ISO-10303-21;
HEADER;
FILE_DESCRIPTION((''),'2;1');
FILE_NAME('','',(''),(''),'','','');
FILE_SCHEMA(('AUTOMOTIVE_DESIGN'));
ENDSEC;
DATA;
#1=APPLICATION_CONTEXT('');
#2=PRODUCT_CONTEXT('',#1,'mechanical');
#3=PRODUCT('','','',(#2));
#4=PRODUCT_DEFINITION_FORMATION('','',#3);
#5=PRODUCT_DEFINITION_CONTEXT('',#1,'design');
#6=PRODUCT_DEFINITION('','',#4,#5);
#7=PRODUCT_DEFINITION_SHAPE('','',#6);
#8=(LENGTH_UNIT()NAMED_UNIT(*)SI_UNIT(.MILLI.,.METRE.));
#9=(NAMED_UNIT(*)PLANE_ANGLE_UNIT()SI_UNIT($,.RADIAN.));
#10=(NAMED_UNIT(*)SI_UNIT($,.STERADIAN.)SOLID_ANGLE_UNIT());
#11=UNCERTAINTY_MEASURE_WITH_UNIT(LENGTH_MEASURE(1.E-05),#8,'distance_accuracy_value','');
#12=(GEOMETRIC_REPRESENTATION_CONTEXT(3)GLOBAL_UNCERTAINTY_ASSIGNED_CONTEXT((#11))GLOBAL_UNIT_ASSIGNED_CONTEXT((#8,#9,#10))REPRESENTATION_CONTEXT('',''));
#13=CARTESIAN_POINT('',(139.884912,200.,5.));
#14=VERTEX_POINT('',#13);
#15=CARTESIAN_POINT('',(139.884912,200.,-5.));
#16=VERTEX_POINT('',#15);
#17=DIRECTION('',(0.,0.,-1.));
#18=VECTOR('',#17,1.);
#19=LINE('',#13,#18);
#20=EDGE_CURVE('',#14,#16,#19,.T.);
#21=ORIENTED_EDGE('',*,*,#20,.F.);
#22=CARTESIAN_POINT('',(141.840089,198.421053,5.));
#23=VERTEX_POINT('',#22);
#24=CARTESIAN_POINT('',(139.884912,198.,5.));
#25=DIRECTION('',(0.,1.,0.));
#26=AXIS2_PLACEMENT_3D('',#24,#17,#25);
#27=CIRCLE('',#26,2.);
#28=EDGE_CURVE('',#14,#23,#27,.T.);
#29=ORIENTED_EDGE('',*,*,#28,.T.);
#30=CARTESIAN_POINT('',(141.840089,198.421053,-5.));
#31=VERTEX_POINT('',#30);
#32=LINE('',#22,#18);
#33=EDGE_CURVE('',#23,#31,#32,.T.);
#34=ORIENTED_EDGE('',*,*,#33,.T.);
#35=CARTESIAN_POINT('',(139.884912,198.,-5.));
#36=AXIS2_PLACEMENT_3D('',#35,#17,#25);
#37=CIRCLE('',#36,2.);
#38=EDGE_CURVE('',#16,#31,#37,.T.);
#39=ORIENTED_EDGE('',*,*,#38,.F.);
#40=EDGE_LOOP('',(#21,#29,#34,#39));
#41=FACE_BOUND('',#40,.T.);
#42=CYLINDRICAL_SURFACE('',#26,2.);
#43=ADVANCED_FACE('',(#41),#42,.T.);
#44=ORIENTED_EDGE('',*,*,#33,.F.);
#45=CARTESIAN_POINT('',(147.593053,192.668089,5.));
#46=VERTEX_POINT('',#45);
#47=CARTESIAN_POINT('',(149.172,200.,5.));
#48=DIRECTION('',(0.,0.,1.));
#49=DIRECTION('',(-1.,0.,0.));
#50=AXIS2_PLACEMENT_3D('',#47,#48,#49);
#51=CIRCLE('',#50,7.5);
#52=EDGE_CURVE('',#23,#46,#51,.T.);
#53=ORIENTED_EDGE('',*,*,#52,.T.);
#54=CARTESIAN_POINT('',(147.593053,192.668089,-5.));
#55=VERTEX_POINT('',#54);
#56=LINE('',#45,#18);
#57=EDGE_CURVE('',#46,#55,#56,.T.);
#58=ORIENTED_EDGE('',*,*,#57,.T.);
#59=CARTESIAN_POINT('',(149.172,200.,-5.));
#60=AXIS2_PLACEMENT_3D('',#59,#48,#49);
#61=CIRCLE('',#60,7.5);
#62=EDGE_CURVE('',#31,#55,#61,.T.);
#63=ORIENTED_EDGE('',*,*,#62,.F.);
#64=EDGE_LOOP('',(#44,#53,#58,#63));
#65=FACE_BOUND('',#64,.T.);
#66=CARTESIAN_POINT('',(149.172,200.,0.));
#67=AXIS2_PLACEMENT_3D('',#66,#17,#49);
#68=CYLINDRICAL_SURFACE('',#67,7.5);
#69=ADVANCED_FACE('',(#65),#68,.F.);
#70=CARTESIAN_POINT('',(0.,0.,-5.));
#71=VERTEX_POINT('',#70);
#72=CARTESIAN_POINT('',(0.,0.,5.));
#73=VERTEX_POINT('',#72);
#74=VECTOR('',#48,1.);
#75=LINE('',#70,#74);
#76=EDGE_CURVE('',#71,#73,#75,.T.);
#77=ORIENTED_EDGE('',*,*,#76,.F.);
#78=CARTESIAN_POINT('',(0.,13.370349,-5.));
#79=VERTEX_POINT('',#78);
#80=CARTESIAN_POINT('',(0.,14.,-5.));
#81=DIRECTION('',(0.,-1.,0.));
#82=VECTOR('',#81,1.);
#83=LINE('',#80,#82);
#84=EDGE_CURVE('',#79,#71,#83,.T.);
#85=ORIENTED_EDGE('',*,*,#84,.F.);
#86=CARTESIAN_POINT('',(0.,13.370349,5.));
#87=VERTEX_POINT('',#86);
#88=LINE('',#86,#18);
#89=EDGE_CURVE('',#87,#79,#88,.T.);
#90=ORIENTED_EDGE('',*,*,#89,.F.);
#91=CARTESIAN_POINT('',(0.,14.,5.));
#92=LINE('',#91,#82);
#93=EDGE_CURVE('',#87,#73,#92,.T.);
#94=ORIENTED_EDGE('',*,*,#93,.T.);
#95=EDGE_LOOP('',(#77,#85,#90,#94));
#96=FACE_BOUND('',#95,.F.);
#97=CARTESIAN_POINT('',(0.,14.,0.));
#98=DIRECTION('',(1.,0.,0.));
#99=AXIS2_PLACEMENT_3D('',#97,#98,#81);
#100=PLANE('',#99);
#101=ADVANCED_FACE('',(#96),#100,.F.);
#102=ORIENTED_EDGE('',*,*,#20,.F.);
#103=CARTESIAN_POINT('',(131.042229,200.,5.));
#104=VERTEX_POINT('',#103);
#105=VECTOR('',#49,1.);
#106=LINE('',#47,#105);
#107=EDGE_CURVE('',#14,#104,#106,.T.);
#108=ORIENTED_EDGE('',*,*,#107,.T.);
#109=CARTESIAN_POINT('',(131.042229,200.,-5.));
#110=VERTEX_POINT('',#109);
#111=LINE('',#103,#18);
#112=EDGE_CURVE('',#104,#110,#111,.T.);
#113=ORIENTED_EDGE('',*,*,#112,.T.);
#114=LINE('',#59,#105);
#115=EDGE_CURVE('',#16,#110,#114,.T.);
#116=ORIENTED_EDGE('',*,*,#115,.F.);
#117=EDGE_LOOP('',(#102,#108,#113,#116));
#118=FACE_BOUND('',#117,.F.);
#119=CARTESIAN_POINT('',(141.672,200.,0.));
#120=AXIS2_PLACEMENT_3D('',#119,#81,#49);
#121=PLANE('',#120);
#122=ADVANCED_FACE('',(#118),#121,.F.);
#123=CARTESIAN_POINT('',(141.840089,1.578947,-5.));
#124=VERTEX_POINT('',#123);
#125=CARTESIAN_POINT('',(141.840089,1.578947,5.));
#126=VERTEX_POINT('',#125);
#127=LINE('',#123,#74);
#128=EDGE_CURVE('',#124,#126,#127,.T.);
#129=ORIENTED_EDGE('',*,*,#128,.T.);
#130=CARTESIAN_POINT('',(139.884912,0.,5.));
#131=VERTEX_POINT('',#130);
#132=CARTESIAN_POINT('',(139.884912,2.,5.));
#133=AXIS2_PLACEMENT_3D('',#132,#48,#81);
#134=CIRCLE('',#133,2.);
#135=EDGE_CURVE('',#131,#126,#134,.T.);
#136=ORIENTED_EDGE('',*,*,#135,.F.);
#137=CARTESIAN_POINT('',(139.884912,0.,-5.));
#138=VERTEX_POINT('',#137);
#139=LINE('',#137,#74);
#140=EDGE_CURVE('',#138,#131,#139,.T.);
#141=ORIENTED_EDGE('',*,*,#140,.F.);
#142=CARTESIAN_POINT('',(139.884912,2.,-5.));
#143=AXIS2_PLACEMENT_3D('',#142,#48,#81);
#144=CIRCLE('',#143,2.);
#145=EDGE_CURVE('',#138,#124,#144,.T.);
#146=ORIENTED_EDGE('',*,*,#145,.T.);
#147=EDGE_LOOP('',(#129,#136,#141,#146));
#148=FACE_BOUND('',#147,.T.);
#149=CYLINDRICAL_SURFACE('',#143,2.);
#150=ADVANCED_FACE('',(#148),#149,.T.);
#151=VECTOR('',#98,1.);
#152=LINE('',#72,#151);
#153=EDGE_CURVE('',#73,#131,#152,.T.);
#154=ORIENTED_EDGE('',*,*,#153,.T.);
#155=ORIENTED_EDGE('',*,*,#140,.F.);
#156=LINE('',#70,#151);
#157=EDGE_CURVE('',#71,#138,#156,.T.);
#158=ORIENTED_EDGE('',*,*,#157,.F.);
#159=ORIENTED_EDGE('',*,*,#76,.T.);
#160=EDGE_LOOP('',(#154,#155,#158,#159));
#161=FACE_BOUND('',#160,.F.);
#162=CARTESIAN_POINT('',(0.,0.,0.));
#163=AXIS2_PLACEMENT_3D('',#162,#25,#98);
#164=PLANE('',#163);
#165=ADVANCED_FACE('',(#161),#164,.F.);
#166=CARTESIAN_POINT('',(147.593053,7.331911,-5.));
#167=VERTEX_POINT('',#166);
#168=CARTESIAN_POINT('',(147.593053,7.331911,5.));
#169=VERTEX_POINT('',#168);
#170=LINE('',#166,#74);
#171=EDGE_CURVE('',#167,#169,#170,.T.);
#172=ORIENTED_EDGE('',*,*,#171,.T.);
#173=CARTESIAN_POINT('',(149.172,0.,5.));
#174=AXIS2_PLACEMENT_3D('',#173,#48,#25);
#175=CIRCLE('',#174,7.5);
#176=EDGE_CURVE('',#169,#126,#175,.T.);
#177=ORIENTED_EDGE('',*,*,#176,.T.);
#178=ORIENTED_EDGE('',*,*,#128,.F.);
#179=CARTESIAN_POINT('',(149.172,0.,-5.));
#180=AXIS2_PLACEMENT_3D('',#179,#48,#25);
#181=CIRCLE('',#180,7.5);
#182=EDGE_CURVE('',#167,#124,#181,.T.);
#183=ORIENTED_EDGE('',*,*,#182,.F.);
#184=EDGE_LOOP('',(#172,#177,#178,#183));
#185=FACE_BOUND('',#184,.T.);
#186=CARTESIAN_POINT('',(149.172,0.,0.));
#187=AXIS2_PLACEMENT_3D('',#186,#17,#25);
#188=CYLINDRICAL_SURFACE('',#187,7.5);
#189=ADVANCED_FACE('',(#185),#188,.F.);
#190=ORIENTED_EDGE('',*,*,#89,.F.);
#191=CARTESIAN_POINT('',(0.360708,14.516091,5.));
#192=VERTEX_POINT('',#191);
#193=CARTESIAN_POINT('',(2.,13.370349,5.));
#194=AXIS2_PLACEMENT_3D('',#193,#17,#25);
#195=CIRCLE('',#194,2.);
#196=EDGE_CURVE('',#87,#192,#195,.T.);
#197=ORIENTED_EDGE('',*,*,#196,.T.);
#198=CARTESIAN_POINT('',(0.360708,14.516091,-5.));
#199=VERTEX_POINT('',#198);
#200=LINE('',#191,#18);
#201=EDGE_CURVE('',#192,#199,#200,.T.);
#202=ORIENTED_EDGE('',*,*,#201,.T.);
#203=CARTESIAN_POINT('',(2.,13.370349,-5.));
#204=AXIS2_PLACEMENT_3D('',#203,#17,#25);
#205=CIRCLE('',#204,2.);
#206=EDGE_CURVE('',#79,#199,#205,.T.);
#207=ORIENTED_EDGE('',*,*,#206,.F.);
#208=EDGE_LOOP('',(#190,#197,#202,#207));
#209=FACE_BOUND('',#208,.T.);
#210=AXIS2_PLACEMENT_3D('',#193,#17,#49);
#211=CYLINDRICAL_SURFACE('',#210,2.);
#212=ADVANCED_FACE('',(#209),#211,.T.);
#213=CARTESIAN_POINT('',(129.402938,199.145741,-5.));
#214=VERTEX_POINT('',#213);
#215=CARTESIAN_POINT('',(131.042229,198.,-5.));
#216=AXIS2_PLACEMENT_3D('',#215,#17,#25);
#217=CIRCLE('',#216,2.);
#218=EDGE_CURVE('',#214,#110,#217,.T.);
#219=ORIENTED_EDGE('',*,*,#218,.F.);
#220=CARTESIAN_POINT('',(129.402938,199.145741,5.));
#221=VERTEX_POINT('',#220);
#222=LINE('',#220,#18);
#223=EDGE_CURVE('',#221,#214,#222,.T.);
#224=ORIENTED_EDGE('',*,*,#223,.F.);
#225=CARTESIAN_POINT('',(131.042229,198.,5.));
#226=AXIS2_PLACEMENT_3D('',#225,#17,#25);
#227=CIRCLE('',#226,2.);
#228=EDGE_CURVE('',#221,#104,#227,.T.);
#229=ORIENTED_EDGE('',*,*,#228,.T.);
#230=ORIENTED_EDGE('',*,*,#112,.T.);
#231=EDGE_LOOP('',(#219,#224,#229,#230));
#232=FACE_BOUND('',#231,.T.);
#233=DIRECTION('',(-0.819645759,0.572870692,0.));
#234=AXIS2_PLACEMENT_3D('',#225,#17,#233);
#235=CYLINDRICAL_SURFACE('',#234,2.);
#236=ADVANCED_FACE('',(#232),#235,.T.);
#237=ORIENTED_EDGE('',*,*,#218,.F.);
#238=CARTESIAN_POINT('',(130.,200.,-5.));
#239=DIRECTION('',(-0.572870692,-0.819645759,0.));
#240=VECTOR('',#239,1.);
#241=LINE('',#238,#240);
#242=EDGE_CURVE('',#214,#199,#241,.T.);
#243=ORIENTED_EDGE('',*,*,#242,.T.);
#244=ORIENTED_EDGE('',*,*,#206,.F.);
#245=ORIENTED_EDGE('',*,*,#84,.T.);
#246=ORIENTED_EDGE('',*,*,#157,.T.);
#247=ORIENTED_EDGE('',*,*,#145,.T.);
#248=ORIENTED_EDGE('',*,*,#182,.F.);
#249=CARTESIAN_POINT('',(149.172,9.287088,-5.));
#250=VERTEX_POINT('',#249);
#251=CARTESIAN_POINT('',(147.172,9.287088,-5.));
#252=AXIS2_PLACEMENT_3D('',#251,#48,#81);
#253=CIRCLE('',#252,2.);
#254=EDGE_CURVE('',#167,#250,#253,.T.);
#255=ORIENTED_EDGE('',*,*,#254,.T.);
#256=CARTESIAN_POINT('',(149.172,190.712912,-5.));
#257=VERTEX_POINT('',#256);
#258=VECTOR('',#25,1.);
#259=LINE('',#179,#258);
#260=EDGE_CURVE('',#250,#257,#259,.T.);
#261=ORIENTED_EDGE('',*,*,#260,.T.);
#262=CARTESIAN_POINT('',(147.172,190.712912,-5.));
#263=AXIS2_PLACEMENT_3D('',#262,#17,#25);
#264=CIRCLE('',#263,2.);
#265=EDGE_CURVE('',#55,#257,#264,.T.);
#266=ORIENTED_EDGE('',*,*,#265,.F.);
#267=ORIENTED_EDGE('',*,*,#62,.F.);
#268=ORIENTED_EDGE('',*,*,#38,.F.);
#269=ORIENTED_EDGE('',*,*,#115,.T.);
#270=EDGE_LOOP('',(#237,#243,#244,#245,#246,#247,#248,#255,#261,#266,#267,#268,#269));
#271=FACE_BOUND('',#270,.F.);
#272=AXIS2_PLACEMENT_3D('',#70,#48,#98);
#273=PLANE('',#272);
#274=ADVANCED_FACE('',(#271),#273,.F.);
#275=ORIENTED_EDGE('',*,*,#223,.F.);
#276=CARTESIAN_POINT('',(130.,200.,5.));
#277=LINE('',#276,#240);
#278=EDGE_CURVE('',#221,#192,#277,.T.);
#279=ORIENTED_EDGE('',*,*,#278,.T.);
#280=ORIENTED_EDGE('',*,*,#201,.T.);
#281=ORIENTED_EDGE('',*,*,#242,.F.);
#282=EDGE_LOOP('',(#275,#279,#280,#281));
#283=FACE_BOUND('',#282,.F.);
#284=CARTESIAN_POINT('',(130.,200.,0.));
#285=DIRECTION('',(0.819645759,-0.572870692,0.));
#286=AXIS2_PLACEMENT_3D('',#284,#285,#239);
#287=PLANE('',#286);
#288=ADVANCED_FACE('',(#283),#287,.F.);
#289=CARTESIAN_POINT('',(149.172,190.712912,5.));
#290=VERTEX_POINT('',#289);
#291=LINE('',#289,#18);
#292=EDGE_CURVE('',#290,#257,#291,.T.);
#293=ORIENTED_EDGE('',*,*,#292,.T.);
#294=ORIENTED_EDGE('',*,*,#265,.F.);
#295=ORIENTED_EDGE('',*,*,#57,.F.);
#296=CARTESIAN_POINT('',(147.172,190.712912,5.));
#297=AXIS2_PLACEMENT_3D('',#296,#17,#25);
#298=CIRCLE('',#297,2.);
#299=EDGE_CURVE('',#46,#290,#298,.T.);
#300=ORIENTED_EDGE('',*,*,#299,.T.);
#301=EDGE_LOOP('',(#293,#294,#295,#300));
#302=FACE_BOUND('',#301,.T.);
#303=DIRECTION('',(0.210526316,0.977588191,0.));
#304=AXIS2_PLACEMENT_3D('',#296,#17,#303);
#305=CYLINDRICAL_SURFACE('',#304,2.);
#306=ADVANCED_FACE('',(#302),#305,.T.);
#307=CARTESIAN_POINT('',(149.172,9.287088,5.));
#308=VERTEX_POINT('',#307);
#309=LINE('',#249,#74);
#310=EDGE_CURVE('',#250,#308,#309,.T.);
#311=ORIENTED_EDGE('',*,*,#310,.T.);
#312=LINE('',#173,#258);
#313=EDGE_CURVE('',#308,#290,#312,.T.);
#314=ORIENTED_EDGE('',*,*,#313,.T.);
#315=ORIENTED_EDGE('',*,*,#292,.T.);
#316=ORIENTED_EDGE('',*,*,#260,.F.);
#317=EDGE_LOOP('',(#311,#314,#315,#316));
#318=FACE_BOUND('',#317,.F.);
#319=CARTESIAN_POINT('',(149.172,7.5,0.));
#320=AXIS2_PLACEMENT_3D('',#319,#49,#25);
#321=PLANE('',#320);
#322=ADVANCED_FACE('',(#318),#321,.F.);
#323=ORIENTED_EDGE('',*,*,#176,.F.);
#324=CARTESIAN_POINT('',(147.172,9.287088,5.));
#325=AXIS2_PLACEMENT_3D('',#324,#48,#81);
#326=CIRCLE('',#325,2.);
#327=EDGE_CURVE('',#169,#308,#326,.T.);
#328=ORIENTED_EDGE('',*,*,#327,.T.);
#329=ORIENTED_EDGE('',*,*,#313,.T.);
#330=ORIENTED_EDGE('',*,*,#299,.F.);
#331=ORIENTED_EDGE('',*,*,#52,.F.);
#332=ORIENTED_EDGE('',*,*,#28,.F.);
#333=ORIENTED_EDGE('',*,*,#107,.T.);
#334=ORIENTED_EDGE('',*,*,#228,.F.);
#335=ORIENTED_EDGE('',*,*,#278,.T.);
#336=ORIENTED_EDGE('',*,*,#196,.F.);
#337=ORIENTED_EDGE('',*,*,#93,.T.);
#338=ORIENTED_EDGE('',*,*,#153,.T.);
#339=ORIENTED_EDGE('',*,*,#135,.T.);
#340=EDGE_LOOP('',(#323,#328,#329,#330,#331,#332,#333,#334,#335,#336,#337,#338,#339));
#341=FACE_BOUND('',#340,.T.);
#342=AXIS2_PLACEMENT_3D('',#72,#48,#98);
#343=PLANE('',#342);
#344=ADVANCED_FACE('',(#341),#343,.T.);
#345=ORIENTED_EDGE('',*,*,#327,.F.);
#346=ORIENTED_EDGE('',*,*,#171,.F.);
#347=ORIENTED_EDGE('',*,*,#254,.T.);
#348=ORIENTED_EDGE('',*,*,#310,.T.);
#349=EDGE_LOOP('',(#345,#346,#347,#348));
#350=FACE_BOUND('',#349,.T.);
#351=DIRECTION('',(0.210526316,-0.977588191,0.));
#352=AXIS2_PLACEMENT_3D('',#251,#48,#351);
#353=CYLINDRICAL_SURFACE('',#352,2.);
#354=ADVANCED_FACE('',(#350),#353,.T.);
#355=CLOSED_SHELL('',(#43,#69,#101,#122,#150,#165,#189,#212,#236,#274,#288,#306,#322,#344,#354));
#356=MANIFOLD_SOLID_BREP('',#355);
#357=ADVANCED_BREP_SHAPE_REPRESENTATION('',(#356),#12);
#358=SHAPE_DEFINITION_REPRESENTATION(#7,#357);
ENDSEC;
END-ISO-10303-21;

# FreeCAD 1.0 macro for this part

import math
import FreeCAD as App
import Part
import Sketcher
from FreeCAD import Vector


def edges_at(feature, points):
    """Names of the edges that pass closest to the given points."""
    edges = feature.Shape.Edges
    near = lambda p: min(range(len(edges)), key=lambda i: edges[i].distToShape(Part.Vertex(*p))[0])
    return sorted({f"Edge{near(p) + 1}" for p in points})

doc = App.newDocument("Part")
body = doc.addObject("PartDesign::Body", "Body")

sketch1 = doc.addObject("Sketcher::SketchObject", "Sketch")
body.addObject(sketch1)
sketch1.AttachmentSupport = (doc.XY_Plane, [""])
sketch1.MapMode = "FlatFace"
sketch1.addGeometry(Part.LineSegment(Vector(0, 14, 0), Vector(0, 0, 0)), False)
sketch1.addGeometry(Part.LineSegment(Vector(0, 0, 0), Vector(142, 0, 0)), False)
sketch1.addGeometry(Part.ArcOfCircle(Part.Circle(Vector(149, 0, 0), Vector(0, 0, 1), 8), math.radians(90), math.radians(180)), False)
sketch1.addGeometry(Part.LineSegment(Vector(149, 8, 0), Vector(149, 192, 0)), False)
sketch1.addGeometry(Part.ArcOfCircle(Part.Circle(Vector(149, 200, 0), Vector(0, 0, 1), 8), math.radians(180), math.radians(270)), False)
sketch1.addGeometry(Part.LineSegment(Vector(142, 200, 0), Vector(130, 200, 0)), False)
sketch1.addGeometry(Part.LineSegment(Vector(130, 200, 0), Vector(0, 14, 0)), False)
sketch1.addConstraint(Sketcher.Constraint("Coincident", 0, 2, 1, 1))
sketch1.addConstraint(Sketcher.Constraint("Coincident", 1, 2, 2, 2))
sketch1.addConstraint(Sketcher.Constraint("Coincident", 2, 1, 3, 1))
sketch1.addConstraint(Sketcher.Constraint("Coincident", 3, 2, 4, 2))
sketch1.addConstraint(Sketcher.Constraint("Coincident", 4, 1, 5, 1))
sketch1.addConstraint(Sketcher.Constraint("Coincident", 5, 2, 6, 1))
sketch1.addConstraint(Sketcher.Constraint("Coincident", 6, 2, 0, 1))
sketch1.addConstraint(Sketcher.Constraint("Vertical", 0))
sketch1.addConstraint(Sketcher.Constraint("Horizontal", 1))
sketch1.addConstraint(Sketcher.Constraint("Vertical", 3))
sketch1.addConstraint(Sketcher.Constraint("Horizontal", 5))
sketch1.addConstraint(Sketcher.Constraint("Coincident", 0, 2, -1, 1))
sketch1.addConstraint(Sketcher.Constraint("Equal", 2, 4))
sketch1.addConstraint(Sketcher.Constraint("PointOnObject", 2, 3, -1))
sketch1.addConstraint(Sketcher.Constraint("Vertical", 2, 3, 4, 3))
sketch1.addConstraint(Sketcher.Constraint("Vertical", 4, 3, 2, 1))
sketch1.addConstraint(Sketcher.Constraint("Radius", 2, 7.5))
sketch1.addConstraint(Sketcher.Constraint("DistanceY", 0, 2, 0, 1, 14.0))
sketch1.addConstraint(Sketcher.Constraint("DistanceY", -1, 1, 4, 3, 200.0))
sketch1.addConstraint(Sketcher.Constraint("DistanceY", -1, 1, 4, 1, 200.0))
sketch1.addConstraint(Sketcher.Constraint("DistanceX", -1, 1, 5, 2, 130.0))
sketch1.addConstraint(Sketcher.Constraint("DistanceX", -1, 1, 2, 3, 149.172))
pad1 = doc.addObject("PartDesign::Pad", "Pad")
body.addObject(pad1)
pad1.Profile = sketch1
pad1.Length = 10
pad1.Midplane = True
doc.recompute()

fillet = doc.addObject("PartDesign::Fillet", "Fillet")
body.addObject(fillet)
fillet.Base = (pad1, edges_at(pad1, [
    (149.172, 7.5, 0),
    (141.672, 0, 0),
    (149.172, 192.5, 0),
    (141.672, 200, 0),
    (130, 200, 0),
    (0, 14, 0),
]))
fillet.Radius = 2

doc.recompute()
